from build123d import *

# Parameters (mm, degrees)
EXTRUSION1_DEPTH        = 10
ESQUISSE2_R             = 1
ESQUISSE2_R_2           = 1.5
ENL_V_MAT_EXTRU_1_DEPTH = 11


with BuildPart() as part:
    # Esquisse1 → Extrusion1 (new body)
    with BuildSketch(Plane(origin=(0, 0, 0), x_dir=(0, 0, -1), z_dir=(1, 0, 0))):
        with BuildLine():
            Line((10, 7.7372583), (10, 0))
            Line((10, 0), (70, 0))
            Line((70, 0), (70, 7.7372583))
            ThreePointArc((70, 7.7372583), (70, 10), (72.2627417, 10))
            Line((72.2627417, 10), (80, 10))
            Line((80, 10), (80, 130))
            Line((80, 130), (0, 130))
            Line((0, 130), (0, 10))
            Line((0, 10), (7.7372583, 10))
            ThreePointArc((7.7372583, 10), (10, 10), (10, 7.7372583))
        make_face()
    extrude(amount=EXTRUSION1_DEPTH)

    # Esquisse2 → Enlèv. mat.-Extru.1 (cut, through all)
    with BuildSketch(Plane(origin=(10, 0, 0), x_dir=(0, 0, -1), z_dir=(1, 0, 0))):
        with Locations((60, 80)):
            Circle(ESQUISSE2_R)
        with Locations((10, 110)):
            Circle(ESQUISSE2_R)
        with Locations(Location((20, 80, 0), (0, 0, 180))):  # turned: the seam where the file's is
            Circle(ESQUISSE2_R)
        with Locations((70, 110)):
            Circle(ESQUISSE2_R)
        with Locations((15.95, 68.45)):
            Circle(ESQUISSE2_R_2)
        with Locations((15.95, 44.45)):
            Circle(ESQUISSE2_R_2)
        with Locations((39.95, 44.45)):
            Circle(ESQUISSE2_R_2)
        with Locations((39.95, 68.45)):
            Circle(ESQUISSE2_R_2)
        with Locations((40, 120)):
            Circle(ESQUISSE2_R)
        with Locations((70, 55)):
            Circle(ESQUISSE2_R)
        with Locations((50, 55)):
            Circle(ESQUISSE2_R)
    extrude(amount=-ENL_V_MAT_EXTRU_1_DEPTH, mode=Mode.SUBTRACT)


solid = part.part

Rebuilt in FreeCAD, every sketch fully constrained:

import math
import FreeCAD as App
import Part
import Sketcher

doc = App.newDocument("Part")
body = doc.addObject("PartDesign::Body", "Body")

# Sketch on YZ plane
sketch1 = body.newObject("Sketcher::SketchObject", "Sketch")
sketch1.AttachmentSupport = (doc.getObject("YZ_Plane"), [""])
sketch1.MapMode = "FlatFace"
sketch1.addGeometry([
    Part.LineSegment(App.Vector(7.737258, -10, 0), App.Vector(0, -10, 0)),  # 0
    Part.LineSegment(App.Vector(0, -10, 0), App.Vector(0, -70, 0)),  # 1
    Part.LineSegment(App.Vector(0, -70, 0), App.Vector(7.737258, -70, 0)),  # 2
    Part.ArcOfCircle(Part.Circle(App.Vector(8.868629, -71.131371, 0), App.Vector(0, 0, 1), 1.6), math.radians(-45), math.radians(135)),  # 3
    Part.LineSegment(App.Vector(10, -72.262742, 0), App.Vector(10, -80, 0)),  # 4
    Part.LineSegment(App.Vector(10, -80, 0), App.Vector(130, -80, 0)),  # 5
    Part.LineSegment(App.Vector(130, -80, 0), App.Vector(130, 0, 0)),  # 6
    Part.LineSegment(App.Vector(130, 0, 0), App.Vector(10, 0, 0)),  # 7
    Part.LineSegment(App.Vector(10, 0, 0), App.Vector(10, -7.737258, 0)),  # 8
    Part.ArcOfCircle(Part.Circle(App.Vector(8.868629, -8.868629, 0), App.Vector(0, 0, 1), 1.6), math.radians(-135), math.radians(45)),  # 9
], False)
sketch1.addConstraint([
    Sketcher.Constraint("Coincident", 0, 2, 1, 1),
    Sketcher.Constraint("Coincident", 1, 2, 2, 1),
    Sketcher.Constraint("Coincident", 2, 2, 3, 2),
    Sketcher.Constraint("Coincident", 3, 1, 4, 1),
    Sketcher.Constraint("Coincident", 4, 2, 5, 1),
    Sketcher.Constraint("Coincident", 5, 2, 6, 1),
    Sketcher.Constraint("Coincident", 6, 2, 7, 1),
    Sketcher.Constraint("Coincident", 7, 2, 8, 1),
    Sketcher.Constraint("Coincident", 8, 2, 9, 2),
    Sketcher.Constraint("Coincident", 9, 1, 0, 1),
    Sketcher.Constraint("Horizontal", 0),
    Sketcher.Constraint("Vertical", 1),
    Sketcher.Constraint("Horizontal", 2),
    Sketcher.Constraint("Vertical", 4),
    Sketcher.Constraint("Horizontal", 5),
    Sketcher.Constraint("Vertical", 6),
    Sketcher.Constraint("Horizontal", 7),
    Sketcher.Constraint("Vertical", 8),
    Sketcher.Constraint("Equal", 3, 9),
    Sketcher.Constraint("PointOnObject", 0, 2, -2),
    Sketcher.Constraint("PointOnObject", 6, 2, -1),
    Sketcher.Constraint("Vertical", 3, 3, 9, 3),
    Sketcher.Constraint("Vertical", 4, 2, 7, 2),
    Sketcher.Constraint("Vertical", 2, 2, 9, 1),
    Sketcher.Constraint("Equal", 2, 4),
    Sketcher.Constraint("Equal", 4, 8),
    Sketcher.Constraint("Radius", 3, 1.6),
    Sketcher.Constraint("DistanceX", 5, 1, 5, 2, 120.0),
    Sketcher.Constraint("DistanceY", 1, 2, 1, 1, 60.0),
    Sketcher.Constraint("DistanceY", 6, 1, 6, 2, 80.0),
    Sketcher.Constraint("DistanceX", -1, 1, 3, 1, 10.0),
    Sketcher.Constraint("DistanceX", -1, 1, 3, 3, 8.868629),
])
pad1 = body.newObject("PartDesign::Pad", "Pad")
pad1.Profile = sketch1
pad1.Length = 10

# Sketch on YZ plane
sketch2 = body.newObject("Sketcher::SketchObject", "Sketch001")
sketch2.AttachmentSupport = (doc.getObject("YZ_Plane"), [""])
sketch2.MapMode = "FlatFace"
sketch2.AttachmentOffset = App.Placement(App.Vector(0, 0, 10), App.Rotation())
sketch2.addGeometry([
    Part.Circle(App.Vector(80, -60, 0), App.Vector(0, 0, 1), 1),  # 0
    Part.Circle(App.Vector(110, -10, 0), App.Vector(0, 0, 1), 1),  # 1
    Part.Circle(App.Vector(80, -20, 0), App.Vector(0, 0, 1), 1),  # 2
    Part.Circle(App.Vector(110, -70, 0), App.Vector(0, 0, 1), 1),  # 3
    Part.Circle(App.Vector(68.45, -15.95, 0), App.Vector(0, 0, 1), 1.5),  # 4
    Part.Circle(App.Vector(44.45, -15.95, 0), App.Vector(0, 0, 1), 1.5),  # 5
    Part.Circle(App.Vector(44.45, -39.95, 0), App.Vector(0, 0, 1), 1.5),  # 6
    Part.Circle(App.Vector(68.45, -39.95, 0), App.Vector(0, 0, 1), 1.5),  # 7
    Part.Circle(App.Vector(120, -40, 0), App.Vector(0, 0, 1), 1),  # 8
    Part.Circle(App.Vector(55, -70, 0), App.Vector(0, 0, 1), 1),  # 9
    Part.Circle(App.Vector(55, -50, 0), App.Vector(0, 0, 1), 1),  # 10
], False)
sketch2.addConstraint([
    Sketcher.Constraint("Equal", 0, 1),
    Sketcher.Constraint("Equal", 1, 2),
    Sketcher.Constraint("Equal", 2, 3),
    Sketcher.Constraint("Equal", 4, 5),
    Sketcher.Constraint("Equal", 5, 6),
    Sketcher.Constraint("Equal", 6, 7),
    Sketcher.Constraint("Equal", 3, 8),
    Sketcher.Constraint("Equal", 8, 9),
    Sketcher.Constraint("Equal", 9, 10),
    Sketcher.Constraint("Horizontal", 4, 3, 5, 3),
    Sketcher.Constraint("Horizontal", 6, 3, 7, 3),
    Sketcher.Constraint("Horizontal", 3, 3, 9, 3),
    Sketcher.Constraint("Vertical", 0, 3, 2, 3),
    Sketcher.Constraint("Vertical", 1, 3, 3, 3),
    Sketcher.Constraint("Vertical", 5, 3, 6, 3),
    Sketcher.Constraint("Vertical", 4, 3, 7, 3),
    Sketcher.Constraint("Vertical", 9, 3, 10, 3),
    Sketcher.Constraint("Diameter", 0, 2.0),
    Sketcher.Constraint("Diameter", 4, 3.0),
    Sketcher.Constraint("DistanceX", -1, 1, 0, 3, 80.0),
    Sketcher.Constraint("DistanceY", 0, 3, -1, 1, 60.0),
    Sketcher.Constraint("DistanceX", -1, 1, 1, 3, 110.0),
    Sketcher.Constraint("DistanceY", 1, 3, -1, 1, 10.0),
    Sketcher.Constraint("DistanceY", 2, 3, -1, 1, 20.0),
    Sketcher.Constraint("DistanceY", 3, 3, -1, 1, 70.0),
    Sketcher.Constraint("DistanceX", -1, 1, 8, 3, 120.0),
    Sketcher.Constraint("DistanceY", 8, 3, -1, 1, 40.0),
    Sketcher.Constraint("DistanceX", -1, 1, 9, 3, 55.0),
    Sketcher.Constraint("DistanceY", 10, 3, -1, 1, 50.0),
    Sketcher.Constraint("DistanceX", 5, 3, 4, 3, 24.0),
    Sketcher.Constraint("DistanceY", 6, 3, 5, 3, 24.0),
    Sketcher.Constraint("DistanceX", -1, 1, 4, 3, 68.45),
    Sketcher.Constraint("DistanceY", 4, 3, -1, 1, 15.95),
])
pocket1 = body.newObject("PartDesign::Pocket", "Pocket")
pocket1.Profile = sketch2
pocket1.Type = "ThroughAll"

doc.recompute()
